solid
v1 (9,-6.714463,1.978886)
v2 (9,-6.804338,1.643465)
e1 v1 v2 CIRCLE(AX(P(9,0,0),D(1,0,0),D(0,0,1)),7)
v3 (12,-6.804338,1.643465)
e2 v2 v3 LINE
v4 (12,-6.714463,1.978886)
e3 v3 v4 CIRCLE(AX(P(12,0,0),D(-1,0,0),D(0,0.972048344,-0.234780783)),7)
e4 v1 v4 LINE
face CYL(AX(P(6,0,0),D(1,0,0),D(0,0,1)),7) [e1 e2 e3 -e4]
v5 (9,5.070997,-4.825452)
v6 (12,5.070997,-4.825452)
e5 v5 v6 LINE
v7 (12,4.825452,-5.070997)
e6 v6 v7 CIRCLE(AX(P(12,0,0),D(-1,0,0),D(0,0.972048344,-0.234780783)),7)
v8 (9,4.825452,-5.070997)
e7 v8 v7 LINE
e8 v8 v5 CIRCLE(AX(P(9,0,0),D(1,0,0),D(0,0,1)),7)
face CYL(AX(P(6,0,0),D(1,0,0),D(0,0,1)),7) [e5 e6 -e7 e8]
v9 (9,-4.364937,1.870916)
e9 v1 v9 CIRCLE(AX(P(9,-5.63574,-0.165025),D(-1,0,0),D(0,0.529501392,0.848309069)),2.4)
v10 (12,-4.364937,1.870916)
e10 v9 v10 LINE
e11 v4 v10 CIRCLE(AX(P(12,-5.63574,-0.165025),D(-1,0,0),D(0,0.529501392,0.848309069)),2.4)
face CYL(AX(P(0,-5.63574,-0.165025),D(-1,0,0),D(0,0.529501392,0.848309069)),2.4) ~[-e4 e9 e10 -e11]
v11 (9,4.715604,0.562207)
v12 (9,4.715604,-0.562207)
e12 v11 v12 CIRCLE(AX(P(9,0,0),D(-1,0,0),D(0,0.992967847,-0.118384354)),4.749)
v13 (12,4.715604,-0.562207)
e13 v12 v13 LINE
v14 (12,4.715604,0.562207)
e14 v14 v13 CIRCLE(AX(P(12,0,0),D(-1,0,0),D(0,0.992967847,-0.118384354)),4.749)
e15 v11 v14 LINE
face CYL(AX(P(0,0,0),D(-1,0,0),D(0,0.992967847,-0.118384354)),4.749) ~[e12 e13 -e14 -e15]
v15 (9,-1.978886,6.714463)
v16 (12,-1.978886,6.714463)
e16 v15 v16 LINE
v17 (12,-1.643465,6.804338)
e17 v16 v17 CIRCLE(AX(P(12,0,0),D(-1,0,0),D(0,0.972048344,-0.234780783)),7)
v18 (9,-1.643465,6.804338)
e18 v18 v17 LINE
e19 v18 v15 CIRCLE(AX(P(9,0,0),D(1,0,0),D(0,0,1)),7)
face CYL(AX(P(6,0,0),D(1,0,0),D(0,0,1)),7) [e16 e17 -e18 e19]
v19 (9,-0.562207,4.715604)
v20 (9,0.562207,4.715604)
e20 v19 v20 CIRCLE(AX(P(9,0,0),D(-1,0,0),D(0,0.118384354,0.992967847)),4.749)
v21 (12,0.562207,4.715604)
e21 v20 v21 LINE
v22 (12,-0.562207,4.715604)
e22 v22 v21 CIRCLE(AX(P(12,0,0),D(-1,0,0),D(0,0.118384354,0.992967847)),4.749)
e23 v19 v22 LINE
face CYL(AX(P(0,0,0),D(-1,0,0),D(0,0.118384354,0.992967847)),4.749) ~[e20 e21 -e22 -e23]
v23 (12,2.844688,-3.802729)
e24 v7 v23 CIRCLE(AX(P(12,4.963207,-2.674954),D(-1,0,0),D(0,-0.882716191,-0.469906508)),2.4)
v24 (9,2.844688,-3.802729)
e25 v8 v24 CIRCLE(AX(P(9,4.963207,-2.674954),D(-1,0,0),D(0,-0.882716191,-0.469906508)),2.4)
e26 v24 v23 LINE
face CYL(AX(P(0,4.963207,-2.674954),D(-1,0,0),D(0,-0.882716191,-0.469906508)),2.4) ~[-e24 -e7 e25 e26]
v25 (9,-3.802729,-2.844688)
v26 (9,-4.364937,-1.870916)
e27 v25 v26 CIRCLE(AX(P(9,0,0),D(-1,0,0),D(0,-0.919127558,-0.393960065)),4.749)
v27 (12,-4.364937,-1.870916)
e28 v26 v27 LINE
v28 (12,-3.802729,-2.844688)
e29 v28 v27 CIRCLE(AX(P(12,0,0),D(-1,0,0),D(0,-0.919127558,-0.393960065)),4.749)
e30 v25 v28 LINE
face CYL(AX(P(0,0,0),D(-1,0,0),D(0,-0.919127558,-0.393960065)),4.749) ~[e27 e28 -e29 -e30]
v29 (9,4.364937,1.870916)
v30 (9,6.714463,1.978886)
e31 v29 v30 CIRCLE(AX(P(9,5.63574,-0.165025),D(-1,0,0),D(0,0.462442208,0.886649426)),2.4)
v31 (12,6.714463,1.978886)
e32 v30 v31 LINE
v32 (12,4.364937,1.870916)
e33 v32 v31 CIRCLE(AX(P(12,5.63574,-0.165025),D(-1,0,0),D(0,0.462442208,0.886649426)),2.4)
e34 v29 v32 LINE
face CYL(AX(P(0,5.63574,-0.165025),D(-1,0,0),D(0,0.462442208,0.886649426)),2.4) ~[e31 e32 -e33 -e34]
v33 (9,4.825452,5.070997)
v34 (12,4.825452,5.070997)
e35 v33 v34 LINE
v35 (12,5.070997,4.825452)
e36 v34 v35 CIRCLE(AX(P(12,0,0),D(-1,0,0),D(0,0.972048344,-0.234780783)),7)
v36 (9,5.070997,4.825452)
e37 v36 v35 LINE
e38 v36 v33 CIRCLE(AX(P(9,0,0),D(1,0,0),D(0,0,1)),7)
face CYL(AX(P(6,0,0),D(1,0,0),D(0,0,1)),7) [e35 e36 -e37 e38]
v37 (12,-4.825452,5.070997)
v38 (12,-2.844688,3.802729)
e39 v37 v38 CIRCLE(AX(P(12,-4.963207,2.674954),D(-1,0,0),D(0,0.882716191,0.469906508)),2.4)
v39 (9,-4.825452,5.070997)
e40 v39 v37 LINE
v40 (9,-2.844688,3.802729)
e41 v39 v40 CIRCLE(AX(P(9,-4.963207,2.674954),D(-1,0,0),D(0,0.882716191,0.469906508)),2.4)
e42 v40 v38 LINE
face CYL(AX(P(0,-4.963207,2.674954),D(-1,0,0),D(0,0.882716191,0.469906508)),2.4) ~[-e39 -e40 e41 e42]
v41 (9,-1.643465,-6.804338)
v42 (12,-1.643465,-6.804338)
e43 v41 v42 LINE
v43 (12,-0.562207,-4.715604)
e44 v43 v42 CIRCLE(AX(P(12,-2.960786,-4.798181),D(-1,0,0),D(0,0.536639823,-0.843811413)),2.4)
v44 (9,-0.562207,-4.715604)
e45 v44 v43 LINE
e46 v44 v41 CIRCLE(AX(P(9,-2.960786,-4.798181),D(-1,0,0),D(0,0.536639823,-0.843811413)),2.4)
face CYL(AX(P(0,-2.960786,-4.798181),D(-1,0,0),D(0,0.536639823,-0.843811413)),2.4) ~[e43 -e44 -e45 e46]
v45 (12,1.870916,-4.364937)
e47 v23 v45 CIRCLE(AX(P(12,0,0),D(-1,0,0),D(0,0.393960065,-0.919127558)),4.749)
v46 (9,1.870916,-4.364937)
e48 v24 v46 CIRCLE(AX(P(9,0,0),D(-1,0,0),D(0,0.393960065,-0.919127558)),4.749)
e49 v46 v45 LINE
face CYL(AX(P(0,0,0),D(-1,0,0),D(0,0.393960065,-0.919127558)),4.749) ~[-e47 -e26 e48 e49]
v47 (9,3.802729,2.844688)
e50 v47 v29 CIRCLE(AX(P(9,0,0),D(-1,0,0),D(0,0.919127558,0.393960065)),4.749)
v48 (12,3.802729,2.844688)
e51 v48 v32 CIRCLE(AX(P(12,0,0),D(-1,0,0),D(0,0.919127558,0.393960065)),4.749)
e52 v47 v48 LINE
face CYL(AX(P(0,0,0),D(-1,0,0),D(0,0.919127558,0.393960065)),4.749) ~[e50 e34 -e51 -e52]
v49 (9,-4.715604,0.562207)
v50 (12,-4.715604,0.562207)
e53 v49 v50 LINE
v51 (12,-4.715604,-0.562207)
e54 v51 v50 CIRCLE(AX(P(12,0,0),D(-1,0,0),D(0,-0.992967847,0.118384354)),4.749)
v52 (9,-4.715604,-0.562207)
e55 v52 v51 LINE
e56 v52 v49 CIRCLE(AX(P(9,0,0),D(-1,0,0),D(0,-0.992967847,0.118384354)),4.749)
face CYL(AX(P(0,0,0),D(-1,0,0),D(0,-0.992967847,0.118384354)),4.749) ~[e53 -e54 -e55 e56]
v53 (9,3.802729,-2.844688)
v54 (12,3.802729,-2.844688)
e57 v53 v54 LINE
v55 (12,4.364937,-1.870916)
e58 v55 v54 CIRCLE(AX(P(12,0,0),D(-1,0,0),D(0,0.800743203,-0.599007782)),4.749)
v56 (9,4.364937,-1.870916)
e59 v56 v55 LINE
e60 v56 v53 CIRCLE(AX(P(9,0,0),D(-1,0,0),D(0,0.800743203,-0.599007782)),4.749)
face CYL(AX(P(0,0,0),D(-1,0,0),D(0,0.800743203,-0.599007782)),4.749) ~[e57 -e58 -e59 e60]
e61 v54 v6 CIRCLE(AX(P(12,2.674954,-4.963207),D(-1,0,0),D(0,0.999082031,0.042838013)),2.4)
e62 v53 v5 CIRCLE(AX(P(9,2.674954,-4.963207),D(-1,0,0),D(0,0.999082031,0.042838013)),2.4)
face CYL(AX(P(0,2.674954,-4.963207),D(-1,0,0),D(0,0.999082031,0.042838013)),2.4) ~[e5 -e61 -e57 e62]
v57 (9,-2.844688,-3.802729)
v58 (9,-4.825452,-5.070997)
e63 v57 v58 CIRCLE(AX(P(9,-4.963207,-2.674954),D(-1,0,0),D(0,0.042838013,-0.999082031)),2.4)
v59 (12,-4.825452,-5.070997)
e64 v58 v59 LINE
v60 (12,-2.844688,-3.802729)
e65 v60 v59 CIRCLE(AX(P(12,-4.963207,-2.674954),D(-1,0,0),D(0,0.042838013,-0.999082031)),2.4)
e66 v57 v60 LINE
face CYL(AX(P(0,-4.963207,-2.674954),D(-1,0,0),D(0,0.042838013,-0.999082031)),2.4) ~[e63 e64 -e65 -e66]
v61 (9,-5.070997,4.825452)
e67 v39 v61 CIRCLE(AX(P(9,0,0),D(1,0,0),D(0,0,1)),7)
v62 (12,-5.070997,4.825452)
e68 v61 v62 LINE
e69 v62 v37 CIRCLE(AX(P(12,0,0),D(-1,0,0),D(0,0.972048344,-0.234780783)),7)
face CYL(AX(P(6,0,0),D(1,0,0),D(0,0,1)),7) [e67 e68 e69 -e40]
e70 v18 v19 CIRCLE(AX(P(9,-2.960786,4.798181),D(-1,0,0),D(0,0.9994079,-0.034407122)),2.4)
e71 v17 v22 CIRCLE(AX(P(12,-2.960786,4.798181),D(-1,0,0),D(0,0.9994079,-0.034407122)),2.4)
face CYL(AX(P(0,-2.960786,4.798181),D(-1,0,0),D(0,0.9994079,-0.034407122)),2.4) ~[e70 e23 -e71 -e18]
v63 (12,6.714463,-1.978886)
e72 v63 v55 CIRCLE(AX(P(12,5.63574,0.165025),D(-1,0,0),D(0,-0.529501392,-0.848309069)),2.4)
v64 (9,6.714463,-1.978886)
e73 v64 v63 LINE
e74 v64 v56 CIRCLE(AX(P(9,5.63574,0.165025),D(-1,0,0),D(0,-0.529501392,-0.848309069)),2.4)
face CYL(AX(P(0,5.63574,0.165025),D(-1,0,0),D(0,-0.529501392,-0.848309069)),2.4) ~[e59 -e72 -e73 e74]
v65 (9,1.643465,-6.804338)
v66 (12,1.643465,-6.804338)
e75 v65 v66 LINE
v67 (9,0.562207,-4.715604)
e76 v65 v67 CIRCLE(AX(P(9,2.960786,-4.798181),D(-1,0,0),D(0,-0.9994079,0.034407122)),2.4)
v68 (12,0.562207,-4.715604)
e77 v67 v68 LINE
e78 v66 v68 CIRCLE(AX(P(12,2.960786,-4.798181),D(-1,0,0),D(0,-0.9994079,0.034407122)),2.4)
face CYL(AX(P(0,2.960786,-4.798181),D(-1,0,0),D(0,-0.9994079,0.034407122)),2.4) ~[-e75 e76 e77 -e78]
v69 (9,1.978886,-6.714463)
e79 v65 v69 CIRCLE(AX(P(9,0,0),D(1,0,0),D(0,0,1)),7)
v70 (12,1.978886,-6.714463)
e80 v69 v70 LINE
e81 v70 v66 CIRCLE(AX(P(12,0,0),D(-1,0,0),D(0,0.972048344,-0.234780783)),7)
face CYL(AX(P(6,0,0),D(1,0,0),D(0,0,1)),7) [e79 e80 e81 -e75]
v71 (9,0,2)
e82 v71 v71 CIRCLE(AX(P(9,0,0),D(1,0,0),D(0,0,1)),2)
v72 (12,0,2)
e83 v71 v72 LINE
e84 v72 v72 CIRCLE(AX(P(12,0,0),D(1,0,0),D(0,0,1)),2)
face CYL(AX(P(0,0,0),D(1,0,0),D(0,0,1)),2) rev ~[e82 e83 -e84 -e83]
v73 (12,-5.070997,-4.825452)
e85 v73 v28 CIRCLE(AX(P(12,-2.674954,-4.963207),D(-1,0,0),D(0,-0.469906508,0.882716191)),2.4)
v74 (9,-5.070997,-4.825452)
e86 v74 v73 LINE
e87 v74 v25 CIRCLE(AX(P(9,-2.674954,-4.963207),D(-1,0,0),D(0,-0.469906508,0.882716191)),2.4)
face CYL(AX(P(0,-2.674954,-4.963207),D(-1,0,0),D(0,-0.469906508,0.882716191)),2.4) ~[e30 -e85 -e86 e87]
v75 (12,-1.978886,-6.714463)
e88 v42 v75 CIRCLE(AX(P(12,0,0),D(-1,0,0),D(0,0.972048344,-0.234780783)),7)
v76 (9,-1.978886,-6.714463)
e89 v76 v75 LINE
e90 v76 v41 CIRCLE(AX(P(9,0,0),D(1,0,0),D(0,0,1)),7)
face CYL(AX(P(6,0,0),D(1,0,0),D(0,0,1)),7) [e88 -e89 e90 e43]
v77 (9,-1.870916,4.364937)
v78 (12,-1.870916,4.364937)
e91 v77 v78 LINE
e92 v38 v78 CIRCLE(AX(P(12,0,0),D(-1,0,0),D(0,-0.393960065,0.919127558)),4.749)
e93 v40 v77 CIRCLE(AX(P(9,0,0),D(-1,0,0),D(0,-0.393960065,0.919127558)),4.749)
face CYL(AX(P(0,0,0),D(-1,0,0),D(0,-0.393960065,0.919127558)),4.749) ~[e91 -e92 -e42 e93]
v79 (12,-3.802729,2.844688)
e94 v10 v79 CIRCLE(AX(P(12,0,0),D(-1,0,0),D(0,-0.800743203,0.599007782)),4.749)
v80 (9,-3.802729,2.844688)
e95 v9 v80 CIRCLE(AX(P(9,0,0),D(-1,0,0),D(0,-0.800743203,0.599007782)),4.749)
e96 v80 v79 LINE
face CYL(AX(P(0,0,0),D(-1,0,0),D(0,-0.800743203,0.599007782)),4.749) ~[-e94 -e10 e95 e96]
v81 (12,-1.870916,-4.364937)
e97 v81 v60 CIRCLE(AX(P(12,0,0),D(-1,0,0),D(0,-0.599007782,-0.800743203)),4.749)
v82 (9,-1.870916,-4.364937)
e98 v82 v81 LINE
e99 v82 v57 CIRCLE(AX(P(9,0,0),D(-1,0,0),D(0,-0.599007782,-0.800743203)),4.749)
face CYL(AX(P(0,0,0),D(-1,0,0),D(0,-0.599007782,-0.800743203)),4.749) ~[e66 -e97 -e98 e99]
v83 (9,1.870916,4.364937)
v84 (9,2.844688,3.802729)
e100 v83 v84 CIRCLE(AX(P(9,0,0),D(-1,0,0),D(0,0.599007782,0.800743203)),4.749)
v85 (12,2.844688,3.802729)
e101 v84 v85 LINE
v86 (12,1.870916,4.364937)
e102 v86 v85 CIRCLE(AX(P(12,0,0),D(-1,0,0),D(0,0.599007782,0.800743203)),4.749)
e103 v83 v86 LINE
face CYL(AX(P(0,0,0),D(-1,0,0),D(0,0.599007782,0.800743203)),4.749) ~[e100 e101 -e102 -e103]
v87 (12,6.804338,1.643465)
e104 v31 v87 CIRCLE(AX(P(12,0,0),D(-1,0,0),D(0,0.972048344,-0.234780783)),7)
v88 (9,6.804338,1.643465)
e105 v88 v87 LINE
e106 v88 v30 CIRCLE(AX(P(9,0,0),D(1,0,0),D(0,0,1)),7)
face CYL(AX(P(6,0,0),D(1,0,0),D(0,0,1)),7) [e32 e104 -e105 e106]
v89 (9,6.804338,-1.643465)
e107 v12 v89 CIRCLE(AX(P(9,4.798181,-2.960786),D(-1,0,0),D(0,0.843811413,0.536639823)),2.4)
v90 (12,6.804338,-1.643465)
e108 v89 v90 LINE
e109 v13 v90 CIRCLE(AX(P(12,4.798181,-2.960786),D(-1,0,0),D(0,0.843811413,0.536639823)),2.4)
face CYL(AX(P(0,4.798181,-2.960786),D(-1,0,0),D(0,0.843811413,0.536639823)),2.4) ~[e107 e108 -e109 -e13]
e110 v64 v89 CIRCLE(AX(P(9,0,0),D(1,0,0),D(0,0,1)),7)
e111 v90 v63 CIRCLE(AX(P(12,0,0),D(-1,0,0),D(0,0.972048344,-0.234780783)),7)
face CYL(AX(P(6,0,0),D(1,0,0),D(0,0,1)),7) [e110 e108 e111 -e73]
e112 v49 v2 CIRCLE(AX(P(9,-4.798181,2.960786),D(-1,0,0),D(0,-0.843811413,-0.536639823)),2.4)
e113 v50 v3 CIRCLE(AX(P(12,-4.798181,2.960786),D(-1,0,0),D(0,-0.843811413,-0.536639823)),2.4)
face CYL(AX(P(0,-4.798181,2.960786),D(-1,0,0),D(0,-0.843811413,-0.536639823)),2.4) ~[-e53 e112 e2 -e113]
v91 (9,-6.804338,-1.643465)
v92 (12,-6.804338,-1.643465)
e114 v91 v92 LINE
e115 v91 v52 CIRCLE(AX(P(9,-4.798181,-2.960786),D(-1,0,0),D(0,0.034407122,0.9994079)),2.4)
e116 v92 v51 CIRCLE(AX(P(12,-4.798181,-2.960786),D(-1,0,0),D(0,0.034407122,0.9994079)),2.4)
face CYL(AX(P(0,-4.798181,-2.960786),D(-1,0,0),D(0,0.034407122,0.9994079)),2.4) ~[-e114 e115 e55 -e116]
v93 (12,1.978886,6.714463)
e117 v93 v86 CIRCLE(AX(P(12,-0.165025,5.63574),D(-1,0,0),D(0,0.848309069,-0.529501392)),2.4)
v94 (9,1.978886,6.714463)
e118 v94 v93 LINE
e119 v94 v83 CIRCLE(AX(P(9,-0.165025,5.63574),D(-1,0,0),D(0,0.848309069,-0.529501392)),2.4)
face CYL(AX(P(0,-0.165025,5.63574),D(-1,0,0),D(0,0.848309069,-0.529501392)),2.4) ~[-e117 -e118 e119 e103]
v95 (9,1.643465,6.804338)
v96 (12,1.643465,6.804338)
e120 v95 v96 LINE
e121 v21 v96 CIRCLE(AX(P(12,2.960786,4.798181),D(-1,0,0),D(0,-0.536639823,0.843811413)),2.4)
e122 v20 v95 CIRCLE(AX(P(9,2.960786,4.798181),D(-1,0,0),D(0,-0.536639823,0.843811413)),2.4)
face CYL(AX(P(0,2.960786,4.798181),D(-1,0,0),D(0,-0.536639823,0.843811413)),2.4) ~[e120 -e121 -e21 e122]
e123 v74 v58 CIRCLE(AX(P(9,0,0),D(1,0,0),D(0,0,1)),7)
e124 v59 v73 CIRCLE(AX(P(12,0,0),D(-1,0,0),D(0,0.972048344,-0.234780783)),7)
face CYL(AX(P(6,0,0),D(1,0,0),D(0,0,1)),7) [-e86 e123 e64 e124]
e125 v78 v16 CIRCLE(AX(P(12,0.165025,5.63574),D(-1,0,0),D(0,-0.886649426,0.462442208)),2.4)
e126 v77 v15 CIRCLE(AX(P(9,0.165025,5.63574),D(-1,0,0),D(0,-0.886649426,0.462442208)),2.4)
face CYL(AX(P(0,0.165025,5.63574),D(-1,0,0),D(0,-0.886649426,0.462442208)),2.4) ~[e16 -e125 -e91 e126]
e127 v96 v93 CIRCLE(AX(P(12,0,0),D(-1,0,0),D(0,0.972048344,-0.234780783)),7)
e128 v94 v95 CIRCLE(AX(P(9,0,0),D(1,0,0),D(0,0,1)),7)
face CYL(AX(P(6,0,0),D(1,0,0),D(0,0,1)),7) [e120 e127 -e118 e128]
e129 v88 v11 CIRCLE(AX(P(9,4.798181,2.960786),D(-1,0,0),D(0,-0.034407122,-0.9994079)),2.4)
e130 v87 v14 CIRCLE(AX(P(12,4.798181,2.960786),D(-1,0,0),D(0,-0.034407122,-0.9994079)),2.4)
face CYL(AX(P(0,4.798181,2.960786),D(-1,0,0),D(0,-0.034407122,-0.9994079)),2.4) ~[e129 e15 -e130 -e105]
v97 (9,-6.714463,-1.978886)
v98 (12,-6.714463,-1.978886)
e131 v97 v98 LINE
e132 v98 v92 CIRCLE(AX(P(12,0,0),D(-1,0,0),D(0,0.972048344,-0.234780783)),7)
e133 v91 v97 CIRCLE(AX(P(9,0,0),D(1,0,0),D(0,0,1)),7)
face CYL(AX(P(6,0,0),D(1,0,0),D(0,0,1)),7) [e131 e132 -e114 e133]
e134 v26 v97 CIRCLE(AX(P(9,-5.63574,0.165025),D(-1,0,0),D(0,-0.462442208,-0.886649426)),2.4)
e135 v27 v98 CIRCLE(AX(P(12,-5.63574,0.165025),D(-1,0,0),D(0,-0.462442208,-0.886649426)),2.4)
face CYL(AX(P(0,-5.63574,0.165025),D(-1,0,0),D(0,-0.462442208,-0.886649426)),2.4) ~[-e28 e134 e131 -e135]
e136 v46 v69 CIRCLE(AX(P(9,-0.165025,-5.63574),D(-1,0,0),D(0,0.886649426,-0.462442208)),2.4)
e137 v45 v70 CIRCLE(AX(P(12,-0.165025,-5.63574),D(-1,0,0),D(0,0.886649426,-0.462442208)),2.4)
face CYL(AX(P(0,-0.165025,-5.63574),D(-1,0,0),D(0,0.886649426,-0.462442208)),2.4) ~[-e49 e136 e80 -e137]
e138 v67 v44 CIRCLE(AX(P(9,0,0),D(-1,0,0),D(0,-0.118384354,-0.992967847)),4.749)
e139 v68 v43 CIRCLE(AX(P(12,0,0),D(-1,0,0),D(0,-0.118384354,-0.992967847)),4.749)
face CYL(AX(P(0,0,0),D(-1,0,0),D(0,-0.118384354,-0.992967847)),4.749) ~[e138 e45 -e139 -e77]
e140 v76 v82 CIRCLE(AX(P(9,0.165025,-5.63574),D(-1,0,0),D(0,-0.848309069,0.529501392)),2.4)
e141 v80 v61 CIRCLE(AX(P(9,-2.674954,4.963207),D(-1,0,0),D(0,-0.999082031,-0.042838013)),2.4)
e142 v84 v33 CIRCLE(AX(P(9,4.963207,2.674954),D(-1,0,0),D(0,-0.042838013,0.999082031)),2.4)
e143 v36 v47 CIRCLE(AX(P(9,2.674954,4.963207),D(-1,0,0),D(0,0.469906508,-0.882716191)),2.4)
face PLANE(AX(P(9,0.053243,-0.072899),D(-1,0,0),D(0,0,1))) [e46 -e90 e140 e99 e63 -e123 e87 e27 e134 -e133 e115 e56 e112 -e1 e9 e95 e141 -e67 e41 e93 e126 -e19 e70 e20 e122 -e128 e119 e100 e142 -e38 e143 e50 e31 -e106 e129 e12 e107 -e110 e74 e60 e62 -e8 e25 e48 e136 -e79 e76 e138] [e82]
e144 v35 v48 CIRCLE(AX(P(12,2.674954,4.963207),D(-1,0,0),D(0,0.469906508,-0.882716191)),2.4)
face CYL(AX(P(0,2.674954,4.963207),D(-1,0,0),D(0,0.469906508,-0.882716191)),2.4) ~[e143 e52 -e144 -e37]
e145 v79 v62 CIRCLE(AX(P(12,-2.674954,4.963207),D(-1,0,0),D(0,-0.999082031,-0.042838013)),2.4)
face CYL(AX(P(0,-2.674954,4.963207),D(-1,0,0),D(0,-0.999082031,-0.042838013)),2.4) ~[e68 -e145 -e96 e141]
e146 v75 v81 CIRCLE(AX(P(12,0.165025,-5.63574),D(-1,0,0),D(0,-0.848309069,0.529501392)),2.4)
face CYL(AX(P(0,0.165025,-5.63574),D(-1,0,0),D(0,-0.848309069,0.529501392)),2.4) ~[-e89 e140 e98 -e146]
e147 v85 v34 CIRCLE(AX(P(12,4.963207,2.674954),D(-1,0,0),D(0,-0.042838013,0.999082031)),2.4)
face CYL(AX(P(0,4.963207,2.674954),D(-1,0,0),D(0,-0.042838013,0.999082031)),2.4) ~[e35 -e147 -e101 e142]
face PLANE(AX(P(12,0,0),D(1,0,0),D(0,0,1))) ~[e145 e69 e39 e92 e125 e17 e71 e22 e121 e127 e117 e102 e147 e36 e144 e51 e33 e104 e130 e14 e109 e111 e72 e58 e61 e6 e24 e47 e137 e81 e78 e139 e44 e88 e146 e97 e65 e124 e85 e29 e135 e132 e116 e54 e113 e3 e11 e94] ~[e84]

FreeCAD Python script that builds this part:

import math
import FreeCAD as App
import Part
import Sketcher

V = App.Vector

doc = App.newDocument("Part")
params = doc.addObject("Spreadsheet::Sheet", "Params")
for row, (alias, value) in enumerate([
    ("sketch1_width", "12 mm"),
    ("sketch1_height", "7 mm"),
    ("revolution_angle", "360 deg"),
    ("sketch2_radius", "2.4 mm"),
    ("sketch3_diameter", "4 mm"),
    ("pocket2_length", "100.000102 mm"),
    ("pocket3_length", "9 mm"),
], start=1):
    params.set(f"A{row}", alias)
    params.set(f"B{row}", "=" + value)
    params.setAlias(f"B{row}", alias)

body = doc.addObject("PartDesign::Body", "Body")

# Sketch on XZ plane
sketch1 = body.newObject("Sketcher::SketchObject", "Sketch")
sketch1.AttachmentSupport = (doc.getObject("XZ_Plane"), [""])
sketch1.MapMode = "FlatFace"
sketch1.addGeometry([
    Part.LineSegment(V(0, -7, 0), V(0, 0, 0)),
    Part.LineSegment(V(0, 0, 0), V(12, 0, 0)),
    Part.LineSegment(V(12, 0, 0), V(12, -7, 0)),
    Part.LineSegment(V(12, -7, 0), V(0, -7, 0)),
], False)
sketch1.addConstraint([
    Sketcher.Constraint("Coincident", 0, 2, 1, 1),
    Sketcher.Constraint("Coincident", 1, 2, 2, 1),
    Sketcher.Constraint("Coincident", 2, 2, 3, 1),
    Sketcher.Constraint("Coincident", 3, 2, 0, 1),
    Sketcher.Constraint("Vertical", 0),
    Sketcher.Constraint("Horizontal", 1),
    Sketcher.Constraint("Vertical", 2),
    Sketcher.Constraint("Horizontal", 3),
    Sketcher.Constraint("Coincident", 0, 2, -1, 1),
    Sketcher.Constraint("DistanceX", 1, 1, 1, 2, 12.0),
    Sketcher.Constraint("DistanceY", 0, 1, 0, 2, 7.0),
])
sketch1.setExpression("Constraints[9]", "Params.sketch1_width")
sketch1.setExpression("Constraints[10]", "Params.sketch1_height")
revolution = body.newObject("PartDesign::Revolution", "Revolution")
revolution.Profile = sketch1
revolution.ReferenceAxis = (sketch1, ["H_Axis"])
revolution.setExpression("Angle", "Params.revolution_angle")

# Sketch on YZ plane
sketch2 = body.newObject("Sketcher::SketchObject", "Sketch001")
sketch2.AttachmentSupport = (doc.getObject("YZ_Plane"), [""])
sketch2.MapMode = "FlatFace"
sketch2.addGeometry([
    Part.ArcOfCircle(Part.Circle(V(0, 0, 0), V(0, 0, 1), 4.749), math.radians(-6.798868), math.radians(6.798868)),
    Part.ArcOfCircle(Part.Circle(V(4.798181, -2.960786, 0), V(0, 0, 1), 2.4), math.radians(32.455189), math.radians(91.971772)),
    Part.ArcOfCircle(Part.Circle(V(0, 0, 0), V(0, 0, 1), 7.0254), math.radians(-13.775292), math.radians(13.775292)),
    Part.ArcOfCircle(Part.Circle(V(4.798181, 2.960786, 0), V(0, 0, 1), 2.4), math.radians(-91.971772), math.radians(-32.455189)),
], False)
sketch2.addConstraint([
    Sketcher.Constraint("Coincident", 0, 1, 1, 2),
    Sketcher.Constraint("Coincident", 1, 1, 2, 1),
    Sketcher.Constraint("Coincident", 2, 2, 3, 2),
    Sketcher.Constraint("Coincident", 3, 1, 0, 2),
    Sketcher.Constraint("Coincident", 0, 3, -1, 1),
    Sketcher.Constraint("Coincident", 2, 3, -1, 1),
    Sketcher.Constraint("Equal", 1, 3),
    Sketcher.Constraint("Symmetric", 1, 3, 3, 3, -1),
    Sketcher.Constraint("Radius", 1, 2.4),
    Sketcher.Constraint("Radius", 0, 4.749),
    Sketcher.Constraint("Radius", 2, 7.0254),
    Sketcher.Constraint("DistanceY", 1, 1, 2, 2, 3.345701),
    Sketcher.Constraint("DistanceX", -1, 1, 1, 3, 4.798181),
])
sketch2.setExpression("Constraints[8]", "Params.sketch2_radius")
pocket1 = body.newObject("PartDesign::Pocket", "Pocket")
pocket1.Profile = sketch2
pocket1.Type = "ThroughAll"
pocket1.Reversed = True
doc.recompute()

polarpattern = body.newObject("PartDesign::PolarPattern", "PolarPattern")
polarpattern.Originals = [pocket1]
polarpattern.Axis = (doc.getObject("X_Axis"), [""])
polarpattern.Angle = 360
polarpattern.Occurrences = 12
body.Tip = polarpattern

# Sketch on YZ plane
sketch3 = body.newObject("Sketcher::SketchObject", "Sketch002")
sketch3.AttachmentSupport = (doc.getObject("YZ_Plane"), [""])
sketch3.MapMode = "FlatFace"
sketch3.addGeometry(Part.Circle(V(0, 0, 0), V(0, 0, 1), 2), False)
sketch3.addConstraint([
    Sketcher.Constraint("Coincident", 0, 3, -1, 1),
    Sketcher.Constraint("Diameter", 0, 4.0),
])
sketch3.setExpression("Constraints[1]", "Params.sketch3_diameter")
pocket2 = body.newObject("PartDesign::Pocket", "Pocket001")
pocket2.Profile = sketch3
pocket2.setExpression("Length", "Params.pocket2_length")
pocket2.Midplane = True

# Sketch on YZ plane
sketch4 = body.newObject("Sketcher::SketchObject", "Sketch003")
sketch4.AttachmentSupport = (doc.getObject("YZ_Plane"), [""])
sketch4.MapMode = "FlatFace"
sketch4.addGeometry([
    Part.LineSegment(V(7.743235, -7.745693, 0), V(-7.63675, -7.745693, 0)),
    Part.LineSegment(V(-7.63675, -7.745693, 0), V(-7.63675, 7.599896, 0)),
    Part.LineSegment(V(-7.63675, 7.599896, 0), V(7.743235, 7.599896, 0)),
    Part.LineSegment(V(7.743235, 7.599896, 0), V(7.743235, -7.745693, 0)),
], False)
sketch4.addConstraint([
    Sketcher.Constraint("Coincident", 0, 2, 1, 1),
    Sketcher.Constraint("Coincident", 1, 2, 2, 1),
    Sketcher.Constraint("Coincident", 2, 2, 3, 1),
    Sketcher.Constraint("Coincident", 3, 2, 0, 1),
    Sketcher.Constraint("Horizontal", 0),
    Sketcher.Constraint("Vertical", 1),
    Sketcher.Constraint("Horizontal", 2),
    Sketcher.Constraint("Vertical", 3),
    Sketcher.Constraint("DistanceY", 1, 1, 1, 2, 15.345589),
    Sketcher.Constraint("DistanceX", 0, 2, 0, 1, 15.379985),
    Sketcher.Constraint("DistanceX", 0, 2, -1, 1, 7.63675),
    Sketcher.Constraint("DistanceY", 0, 2, -1, 1, 7.745693),
])
pocket3 = body.newObject("PartDesign::Pocket", "Pocket002")
pocket3.Profile = sketch4
pocket3.setExpression("Length", "Params.pocket3_length")
pocket3.Reversed = True

doc.recompute()
